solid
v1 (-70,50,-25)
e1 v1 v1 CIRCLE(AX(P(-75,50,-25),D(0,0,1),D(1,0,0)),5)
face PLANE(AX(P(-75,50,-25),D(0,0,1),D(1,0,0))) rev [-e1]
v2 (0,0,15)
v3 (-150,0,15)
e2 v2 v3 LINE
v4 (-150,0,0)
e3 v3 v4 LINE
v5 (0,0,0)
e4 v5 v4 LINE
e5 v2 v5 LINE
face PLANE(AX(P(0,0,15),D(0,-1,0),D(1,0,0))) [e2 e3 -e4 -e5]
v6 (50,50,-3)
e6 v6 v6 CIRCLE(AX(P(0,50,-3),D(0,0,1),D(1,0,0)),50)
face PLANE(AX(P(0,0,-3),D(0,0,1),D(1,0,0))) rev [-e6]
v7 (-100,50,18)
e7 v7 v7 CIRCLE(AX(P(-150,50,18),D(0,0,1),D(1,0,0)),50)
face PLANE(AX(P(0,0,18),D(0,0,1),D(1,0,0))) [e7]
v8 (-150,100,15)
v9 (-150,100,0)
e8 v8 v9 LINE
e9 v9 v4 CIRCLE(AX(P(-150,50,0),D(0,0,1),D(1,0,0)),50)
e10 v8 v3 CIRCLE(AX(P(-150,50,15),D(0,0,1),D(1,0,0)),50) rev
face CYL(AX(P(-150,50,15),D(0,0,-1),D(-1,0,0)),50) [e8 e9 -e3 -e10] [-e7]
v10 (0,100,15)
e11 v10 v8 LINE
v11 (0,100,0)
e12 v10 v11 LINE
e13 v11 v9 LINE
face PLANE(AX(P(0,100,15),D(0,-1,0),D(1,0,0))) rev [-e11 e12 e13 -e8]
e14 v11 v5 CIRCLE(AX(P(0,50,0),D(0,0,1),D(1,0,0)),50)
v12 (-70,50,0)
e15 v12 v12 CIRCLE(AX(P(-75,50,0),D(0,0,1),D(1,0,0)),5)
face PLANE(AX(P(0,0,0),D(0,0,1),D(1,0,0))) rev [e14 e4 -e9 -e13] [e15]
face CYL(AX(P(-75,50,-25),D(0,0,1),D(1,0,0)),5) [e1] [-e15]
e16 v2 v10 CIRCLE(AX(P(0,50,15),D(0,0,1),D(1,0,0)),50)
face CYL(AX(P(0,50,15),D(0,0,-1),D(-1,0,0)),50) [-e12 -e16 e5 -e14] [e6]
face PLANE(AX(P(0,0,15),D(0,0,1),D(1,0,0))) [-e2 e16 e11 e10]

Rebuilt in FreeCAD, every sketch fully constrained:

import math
import FreeCAD as App
import Part
import Sketcher

V = App.Vector

doc = App.newDocument("Part")
body = doc.addObject("PartDesign::Body", "Body")

# Sketch on XY plane
sketch1 = body.newObject("Sketcher::SketchObject", "Sketch")
sketch1.AttachmentSupport = (doc.getObject("XY_Plane"), [""])
sketch1.MapMode = "FlatFace"
sketch1.addGeometry(Part.LineSegment(V(-150, 100, 0), V(-150, 0, 0)), False)
sketch1.addGeometry(Part.LineSegment(V(-150, 0, 0), V(0, 0, 0)), False)
sketch1.addGeometry(Part.LineSegment(V(0, 0, 0), V(0, 100, 0)), False)
sketch1.addGeometry(Part.LineSegment(V(0, 100, 0), V(-150, 100, 0)), False)
sketch1.addConstraint(Sketcher.Constraint("Coincident", 0, 2, 1, 1))
sketch1.addConstraint(Sketcher.Constraint("Coincident", 1, 2, 2, 1))
sketch1.addConstraint(Sketcher.Constraint("Coincident", 2, 2, 3, 1))
sketch1.addConstraint(Sketcher.Constraint("Coincident", 3, 2, 0, 1))
sketch1.addConstraint(Sketcher.Constraint("Vertical", 0))
sketch1.addConstraint(Sketcher.Constraint("Horizontal", 1))
sketch1.addConstraint(Sketcher.Constraint("Vertical", 2))
sketch1.addConstraint(Sketcher.Constraint("Horizontal", 3))
sketch1.addConstraint(Sketcher.Constraint("Coincident", 1, 2, -1, 1))
sketch1.addConstraint(Sketcher.Constraint("DistanceX", 1, 1, 1, 2, 150.0))
sketch1.addConstraint(Sketcher.Constraint("DistanceY", 0, 2, 0, 1, 100.0))
pad1 = body.newObject("PartDesign::Pad", "Pad")
pad1.Profile = sketch1
pad1.Length = 15

# Sketch on XY plane
sketch2 = body.newObject("Sketcher::SketchObject", "Sketch001")
sketch2.AttachmentSupport = (doc.getObject("XY_Plane"), [""])
sketch2.MapMode = "FlatFace"
sketch2.addGeometry(Part.ArcOfCircle(Part.Circle(V(0, 50, 0), V(0, 0, 1), 50), math.radians(0), math.radians(90)), False)
sketch2.addGeometry(Part.LineSegment(V(0, 100, 0), V(0, 0, 0)), False)
sketch2.addGeometry(Part.ArcOfCircle(Part.Circle(V(0, 50, 0), V(0, 0, 1), 50), math.radians(-90), math.radians(0)), False)
sketch2.addGeometry(Part.ArcOfCircle(Part.Circle(V(-150, 50, 0), V(0, 0, 1), 50), math.radians(90), math.radians(270)), False)
sketch2.addGeometry(Part.LineSegment(V(-150, 0, 0), V(-150, 100, 0)), False)
sketch2.addConstraint(Sketcher.Constraint("Coincident", 0, 2, 1, 1))
sketch2.addConstraint(Sketcher.Constraint("Coincident", 1, 2, 2, 1))
sketch2.addConstraint(Sketcher.Constraint("Tangent", 2, 2, 0, 1))
sketch2.addConstraint(Sketcher.Constraint("Coincident", 3, 1, 4, 2))
sketch2.addConstraint(Sketcher.Constraint("Coincident", 4, 1, 3, 2))
sketch2.addConstraint(Sketcher.Constraint("Vertical", 1))
sketch2.addConstraint(Sketcher.Constraint("Vertical", 4))
sketch2.addConstraint(Sketcher.Constraint("Coincident", 1, 2, -1, 1))
sketch2.addConstraint(Sketcher.Constraint("Equal", 0, 2))
sketch2.addConstraint(Sketcher.Constraint("Equal", 2, 3))
sketch2.addConstraint(Sketcher.Constraint("PointOnObject", 0, 3, -2))
sketch2.addConstraint(Sketcher.Constraint("PointOnObject", 4, 1, -1))
sketch2.addConstraint(Sketcher.Constraint("Horizontal", 3, 3, 2, 2))
sketch2.addConstraint(Sketcher.Constraint("Radius", 0, 50.0))
sketch2.addConstraint(Sketcher.Constraint("DistanceX", 3, 3, -1, 1, 150.0))
sketch2.addConstraint(Sketcher.Constraint("DistanceX", 3, 1, -1, 1, 150.0))
pad2 = body.newObject("PartDesign::Pad", "Pad001")
pad2.Profile = sketch2
pad2.Length = 15

# Sketch on XY plane
sketch3 = body.newObject("Sketcher::SketchObject", "Sketch002")
sketch3.AttachmentSupport = (doc.getObject("XY_Plane"), [""])
sketch3.MapMode = "FlatFace"
sketch3.addGeometry(Part.ArcOfCircle(Part.Circle(V(-150, 50, 0), V(0, 0, 1), 50), math.radians(-90), math.radians(0)), False)
sketch3.addGeometry(Part.ArcOfCircle(Part.Circle(V(-150, 50, 0), V(0, 0, 1), 50), math.radians(0), math.radians(90)), False)
sketch3.addGeometry(Part.ArcOfCircle(Part.Circle(V(-150, 50, 0), V(0, 0, 1), 50), math.radians(90), math.radians(270)), False)
sketch3.addConstraint(Sketcher.Constraint("Tangent", 0, 2, 1, 1))
sketch3.addConstraint(Sketcher.Constraint("Tangent", 1, 2, 2, 1))
sketch3.addConstraint(Sketcher.Constraint("Tangent", 2, 2, 0, 1))
sketch3.addConstraint(Sketcher.Constraint("PointOnObject", 2, 2, -1))
sketch3.addConstraint(Sketcher.Constraint("Horizontal", 2, 3, 0, 2))
sketch3.addConstraint(Sketcher.Constraint("Vertical", 2, 3, 1, 2))
sketch3.addConstraint(Sketcher.Constraint("Vertical", 1, 2, 2, 2))
sketch3.addConstraint(Sketcher.Constraint("Radius", 0, 50.0))
sketch3.addConstraint(Sketcher.Constraint("DistanceX", 0, 3, -1, 1, 150.0))
pad3 = body.newObject("PartDesign::Pad", "Pad002")
pad3.Profile = sketch3
pad3.Length = 18

# Sketch on XY plane
sketch4 = body.newObject("Sketcher::SketchObject", "Sketch003")
sketch4.AttachmentSupport = (doc.getObject("XY_Plane"), [""])
sketch4.MapMode = "FlatFace"
sketch4.AttachmentOffset = App.Placement(V(0, 0, -3), App.Rotation())
sketch4.addGeometry(Part.ArcOfCircle(Part.Circle(V(0, 50, 0), V(0, 0, 1), 50), math.radians(90), math.radians(180)), False)
sketch4.addGeometry(Part.ArcOfCircle(Part.Circle(V(0, 50, 0), V(0, 0, 1), 50), math.radians(-180), math.radians(-90)), False)
sketch4.addGeometry(Part.ArcOfCircle(Part.Circle(V(0, 50, 0), V(0, 0, 1), 50), math.radians(-90), math.radians(0)), False)
sketch4.addGeometry(Part.ArcOfCircle(Part.Circle(V(0, 50, 0), V(0, 0, 1), 50), math.radians(0), math.radians(90)), False)
sketch4.addConstraint(Sketcher.Constraint("Tangent", 0, 2, 1, 1))
sketch4.addConstraint(Sketcher.Constraint("Tangent", 1, 2, 2, 1))
sketch4.addConstraint(Sketcher.Constraint("Tangent", 2, 2, 3, 1))
sketch4.addConstraint(Sketcher.Constraint("Tangent", 3, 2, 0, 1))
sketch4.addConstraint(Sketcher.Constraint("Coincident", 1, 2, -1, 1))
sketch4.addConstraint(Sketcher.Constraint("Equal", 0, 1))
sketch4.addConstraint(Sketcher.Constraint("Symmetric", 0, 2, 2, 2, -2))
sketch4.addConstraint(Sketcher.Constraint("PointOnObject", 3, 2, -2))
sketch4.addConstraint(Sketcher.Constraint("Horizontal", 3, 3, 0, 2))
sketch4.addConstraint(Sketcher.Constraint("Radius", 0, 50.0))
pad4 = body.newObject("PartDesign::Pad", "Pad003")
pad4.Profile = sketch4
pad4.Length = 3

# Sketch on XY plane
sketch5 = body.newObject("Sketcher::SketchObject", "Sketch004")
sketch5.AttachmentSupport = (doc.getObject("XY_Plane"), [""])
sketch5.MapMode = "FlatFace"
sketch5.addGeometry(Part.Circle(V(-75, 50, 0), V(0, 0, 1), 5), False)
sketch5.addConstraint(Sketcher.Constraint("Diameter", 0, 10.0))
sketch5.addConstraint(Sketcher.Constraint("DistanceX", 0, 3, -1, 1, 75.0))
sketch5.addConstraint(Sketcher.Constraint("DistanceY", -1, 1, 0, 3, 50.0))
pad5 = body.newObject("PartDesign::Pad", "Pad004")
pad5.Profile = sketch5
pad5.Length = 25
pad5.Reversed = True

doc.recompute()
